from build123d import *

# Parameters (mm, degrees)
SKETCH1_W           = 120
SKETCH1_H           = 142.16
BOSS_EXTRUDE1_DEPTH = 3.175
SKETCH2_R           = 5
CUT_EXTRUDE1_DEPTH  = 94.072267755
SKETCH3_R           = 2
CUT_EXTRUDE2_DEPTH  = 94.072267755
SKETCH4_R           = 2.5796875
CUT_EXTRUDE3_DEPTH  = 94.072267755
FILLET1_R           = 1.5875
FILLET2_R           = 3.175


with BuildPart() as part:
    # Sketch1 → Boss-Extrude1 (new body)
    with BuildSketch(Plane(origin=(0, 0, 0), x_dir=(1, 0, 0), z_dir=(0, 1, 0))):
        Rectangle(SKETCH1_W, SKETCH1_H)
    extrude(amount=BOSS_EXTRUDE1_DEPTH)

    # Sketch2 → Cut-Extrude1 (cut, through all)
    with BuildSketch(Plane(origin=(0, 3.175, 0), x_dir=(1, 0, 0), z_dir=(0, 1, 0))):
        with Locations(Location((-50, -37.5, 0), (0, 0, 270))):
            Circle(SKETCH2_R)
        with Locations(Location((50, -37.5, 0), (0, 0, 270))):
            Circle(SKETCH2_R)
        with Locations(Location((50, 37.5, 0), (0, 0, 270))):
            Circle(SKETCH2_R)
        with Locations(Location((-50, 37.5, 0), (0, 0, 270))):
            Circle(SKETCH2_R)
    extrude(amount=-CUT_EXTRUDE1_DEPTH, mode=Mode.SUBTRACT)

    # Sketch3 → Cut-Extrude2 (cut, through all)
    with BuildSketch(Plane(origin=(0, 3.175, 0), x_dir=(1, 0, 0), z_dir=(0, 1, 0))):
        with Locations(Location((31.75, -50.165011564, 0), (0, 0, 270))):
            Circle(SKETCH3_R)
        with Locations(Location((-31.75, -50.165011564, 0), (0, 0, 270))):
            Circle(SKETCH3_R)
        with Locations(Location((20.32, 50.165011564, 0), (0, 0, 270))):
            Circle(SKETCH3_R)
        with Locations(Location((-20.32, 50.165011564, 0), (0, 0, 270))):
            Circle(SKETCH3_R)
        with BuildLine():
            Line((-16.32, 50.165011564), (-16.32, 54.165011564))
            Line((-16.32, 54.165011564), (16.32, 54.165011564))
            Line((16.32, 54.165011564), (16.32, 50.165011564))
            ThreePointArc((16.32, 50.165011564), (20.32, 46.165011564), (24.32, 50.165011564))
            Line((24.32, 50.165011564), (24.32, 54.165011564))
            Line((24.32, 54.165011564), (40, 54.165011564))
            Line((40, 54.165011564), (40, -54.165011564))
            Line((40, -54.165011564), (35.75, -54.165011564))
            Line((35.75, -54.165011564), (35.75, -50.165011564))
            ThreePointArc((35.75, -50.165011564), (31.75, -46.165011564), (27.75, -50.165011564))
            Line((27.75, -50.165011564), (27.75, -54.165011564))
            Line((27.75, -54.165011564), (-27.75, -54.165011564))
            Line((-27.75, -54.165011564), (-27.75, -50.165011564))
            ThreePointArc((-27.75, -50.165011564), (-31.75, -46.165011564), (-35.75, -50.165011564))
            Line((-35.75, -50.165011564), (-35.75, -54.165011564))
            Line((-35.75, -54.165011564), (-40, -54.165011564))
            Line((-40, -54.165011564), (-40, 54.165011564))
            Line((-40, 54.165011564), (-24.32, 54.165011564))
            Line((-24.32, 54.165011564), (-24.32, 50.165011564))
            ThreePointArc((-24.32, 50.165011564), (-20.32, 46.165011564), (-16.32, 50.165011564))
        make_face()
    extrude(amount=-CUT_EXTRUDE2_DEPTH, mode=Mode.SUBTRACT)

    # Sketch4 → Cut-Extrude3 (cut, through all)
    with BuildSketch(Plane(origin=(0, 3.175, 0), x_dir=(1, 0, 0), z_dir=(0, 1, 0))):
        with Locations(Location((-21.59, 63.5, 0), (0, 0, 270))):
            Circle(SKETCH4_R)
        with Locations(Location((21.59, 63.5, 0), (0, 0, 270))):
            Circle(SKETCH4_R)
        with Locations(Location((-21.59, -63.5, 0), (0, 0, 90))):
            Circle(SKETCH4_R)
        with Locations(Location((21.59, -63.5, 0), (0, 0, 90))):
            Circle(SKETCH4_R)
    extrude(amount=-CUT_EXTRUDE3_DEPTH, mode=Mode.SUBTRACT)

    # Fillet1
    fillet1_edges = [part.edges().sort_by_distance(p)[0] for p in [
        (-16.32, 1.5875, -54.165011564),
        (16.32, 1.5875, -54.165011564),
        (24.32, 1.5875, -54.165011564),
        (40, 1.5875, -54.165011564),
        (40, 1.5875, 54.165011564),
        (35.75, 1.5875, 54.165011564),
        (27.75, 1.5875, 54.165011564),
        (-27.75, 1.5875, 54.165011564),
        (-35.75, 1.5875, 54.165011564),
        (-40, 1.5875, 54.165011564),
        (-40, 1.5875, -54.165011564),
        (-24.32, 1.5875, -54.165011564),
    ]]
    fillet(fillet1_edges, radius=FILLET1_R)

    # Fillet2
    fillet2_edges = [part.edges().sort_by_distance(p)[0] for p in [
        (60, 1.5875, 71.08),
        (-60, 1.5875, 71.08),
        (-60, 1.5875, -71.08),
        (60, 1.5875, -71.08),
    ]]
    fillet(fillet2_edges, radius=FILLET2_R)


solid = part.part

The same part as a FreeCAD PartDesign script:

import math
import FreeCAD as App
import Part
import Sketcher
from FreeCAD import Vector


def edges_at(feature, points):
    """Names of the edges that pass closest to the given points."""
    edges = feature.Shape.Edges
    near = lambda p: min(range(len(edges)), key=lambda i: edges[i].distToShape(Part.Vertex(*p))[0])
    return sorted({f"Edge{near(p) + 1}" for p in points})

doc = App.newDocument("Part")
body = doc.addObject("PartDesign::Body", "Body")

# Sketch on XZ plane
sketch1 = body.newObject("Sketcher::SketchObject", "Sketch")
sketch1.AttachmentSupport = (doc.getObject("XZ_Plane"), [""])
sketch1.MapMode = "FlatFace"
sketch1.addGeometry([
    Part.LineSegment(Vector(-60, -71, 0), Vector(-60, 71, 0)),
    Part.LineSegment(Vector(-60, 71, 0), Vector(60, 71, 0)),
    Part.LineSegment(Vector(60, 71, 0), Vector(60, -71, 0)),
    Part.LineSegment(Vector(60, -71, 0), Vector(-60, -71, 0)),
], False)
sketch1.addConstraint([
    Sketcher.Constraint("Coincident", 0, 2, 1, 1),
    Sketcher.Constraint("Coincident", 1, 2, 2, 1),
    Sketcher.Constraint("Coincident", 2, 2, 3, 1),
    Sketcher.Constraint("Coincident", 3, 2, 0, 1),
    Sketcher.Constraint("Vertical", 0),
    Sketcher.Constraint("Horizontal", 1),
    Sketcher.Constraint("Vertical", 2),
    Sketcher.Constraint("Horizontal", 3),
    Sketcher.Constraint("Symmetric", 0, 2, 2, 2, -1, 1),
    Sketcher.Constraint("DistanceX", 1, 1, 1, 2, 120.0),
    Sketcher.Constraint("DistanceY", 0, 1, 0, 2, 142.16),
])
pad1 = body.newObject("PartDesign::Pad", "Pad")
pad1.Profile = sketch1
pad1.Length = 3.175
pad1.Reversed = True

# Sketch on XZ plane
sketch2 = body.newObject("Sketcher::SketchObject", "Sketch001")
sketch2.AttachmentSupport = (doc.getObject("XZ_Plane"), [""])
sketch2.MapMode = "FlatFace"
sketch2.AttachmentOffset = App.Placement(Vector(0, 0, -3.175), App.Rotation())
sketch2.addGeometry([
    Part.Circle(Vector(-50, 38, 0), Vector(0, 0, 1), 5),
    Part.Circle(Vector(50, 38, 0), Vector(0, 0, 1), 5),
    Part.Circle(Vector(50, -38, 0), Vector(0, 0, 1), 5),
    Part.Circle(Vector(-50, -38, 0), Vector(0, 0, 1), 5),
], False)
sketch2.addConstraint([
    Sketcher.Constraint("Equal", 0, 1),
    Sketcher.Constraint("Equal", 1, 2),
    Sketcher.Constraint("Equal", 2, 3),
    Sketcher.Constraint("Symmetric", 0, 3, 2, 3, -1, 1),
    Sketcher.Constraint("Symmetric", 1, 3, 3, 3, -1, 1),
    Sketcher.Constraint("Symmetric", 0, 3, 1, 3, -2),
    Sketcher.Constraint("Diameter", 0, 10.0),
    Sketcher.Constraint("DistanceX", 0, 3, -1, 1, 50.0),
    Sketcher.Constraint("DistanceY", 2, 3, 1, 3, 75.0),
])
pocket1 = body.newObject("PartDesign::Pocket", "Pocket")
pocket1.Profile = sketch2
pocket1.Type = "ThroughAll"
pocket1.Reversed = True

# Sketch on XZ plane
sketch3 = body.newObject("Sketcher::SketchObject", "Sketch002")
sketch3.AttachmentSupport = (doc.getObject("XZ_Plane"), [""])
sketch3.MapMode = "FlatFace"
sketch3.AttachmentOffset = App.Placement(Vector(0, 0, -3.175), App.Rotation())
sketch3.addGeometry([
    Part.Circle(Vector(31.8, 50.2, 0), Vector(0, 0, 1), 2),  # 0
    Part.Circle(Vector(-31.8, 50.2, 0), Vector(0, 0, 1), 2),  # 1
    Part.Circle(Vector(20.3, -50.2, 0), Vector(0, 0, 1), 2),  # 2
    Part.Circle(Vector(-20.3, -50.2, 0), Vector(0, 0, 1), 2),  # 3
    Part.LineSegment(Vector(-16.3, -54.2, 0), Vector(-16.3, -50.2, 0)),  # 4
    Part.ArcOfCircle(Part.Circle(Vector(-20.3, -50.2, 0), Vector(0, 0, 1), 4), math.radians(0), math.radians(180)),  # 5
    Part.LineSegment(Vector(-24.3, -50.2, 0), Vector(-24.3, -54.2, 0)),  # 6
    Part.LineSegment(Vector(-24.3, -54.2, 0), Vector(-40, -54.2, 0)),  # 7
    Part.LineSegment(Vector(-40, -54.2, 0), Vector(-40, 54.2, 0)),  # 8
    Part.LineSegment(Vector(-40, 54.2, 0), Vector(-35.8, 54.2, 0)),  # 9
    Part.LineSegment(Vector(-35.8, 54.2, 0), Vector(-35.8, 50.2, 0)),  # 10
    Part.ArcOfCircle(Part.Circle(Vector(-31.8, 50.2, 0), Vector(0, 0, 1), 4), math.radians(180), math.radians(360)),  # 11
    Part.LineSegment(Vector(-27.8, 50.2, 0), Vector(-27.8, 54.2, 0)),  # 12
    Part.LineSegment(Vector(-27.8, 54.2, 0), Vector(27.8, 54.2, 0)),  # 13
    Part.LineSegment(Vector(27.8, 54.2, 0), Vector(27.8, 50.2, 0)),  # 14
    Part.ArcOfCircle(Part.Circle(Vector(31.8, 50.2, 0), Vector(0, 0, 1), 4), math.radians(180), math.radians(360)),  # 15
    Part.LineSegment(Vector(35.8, 50.2, 0), Vector(35.8, 54.2, 0)),  # 16
    Part.LineSegment(Vector(35.8, 54.2, 0), Vector(40, 54.2, 0)),  # 17
    Part.LineSegment(Vector(40, 54.2, 0), Vector(40, -54.2, 0)),  # 18
    Part.LineSegment(Vector(40, -54.2, 0), Vector(24.3, -54.2, 0)),  # 19
    Part.LineSegment(Vector(24.3, -54.2, 0), Vector(24.3, -50.2, 0)),  # 20
    Part.ArcOfCircle(Part.Circle(Vector(20.3, -50.2, 0), Vector(0, 0, 1), 4), math.radians(0), math.radians(180)),  # 21
    Part.LineSegment(Vector(16.3, -50.2, 0), Vector(16.3, -54.2, 0)),  # 22
    Part.LineSegment(Vector(16.3, -54.2, 0), Vector(-16.3, -54.2, 0)),  # 23
], False)
sketch3.addConstraint([
    Sketcher.Constraint("Tangent", 4, 2, 5, 1),
    Sketcher.Constraint("Tangent", 5, 2, 6, 1),
    Sketcher.Constraint("Coincident", 6, 2, 7, 1),
    Sketcher.Constraint("Coincident", 7, 2, 8, 1),
    Sketcher.Constraint("Coincident", 8, 2, 9, 1),
    Sketcher.Constraint("Coincident", 9, 2, 10, 1),
    Sketcher.Constraint("Tangent", 10, 2, 11, 1),
    Sketcher.Constraint("Tangent", 11, 2, 12, 1),
    Sketcher.Constraint("Coincident", 12, 2, 13, 1),
    Sketcher.Constraint("Coincident", 13, 2, 14, 1),
    Sketcher.Constraint("Tangent", 14, 2, 15, 1),
    Sketcher.Constraint("Tangent", 15, 2, 16, 1),
    Sketcher.Constraint("Coincident", 16, 2, 17, 1),
    Sketcher.Constraint("Coincident", 17, 2, 18, 1),
    Sketcher.Constraint("Coincident", 18, 2, 19, 1),
    Sketcher.Constraint("Coincident", 19, 2, 20, 1),
    Sketcher.Constraint("Tangent", 20, 2, 21, 1),
    Sketcher.Constraint("Tangent", 21, 2, 22, 1),
    Sketcher.Constraint("Coincident", 22, 2, 23, 1),
    Sketcher.Constraint("Coincident", 23, 2, 4, 1),
    Sketcher.Constraint("Vertical", 4),
    Sketcher.Constraint("Vertical", 6),
    Sketcher.Constraint("Horizontal", 7),
    Sketcher.Constraint("Vertical", 8),
    Sketcher.Constraint("Horizontal", 9),
    Sketcher.Constraint("Vertical", 10),
    Sketcher.Constraint("Vertical", 12),
    Sketcher.Constraint("Horizontal", 13),
    Sketcher.Constraint("Vertical", 14),
    Sketcher.Constraint("Vertical", 16),
    Sketcher.Constraint("Horizontal", 17),
    Sketcher.Constraint("Vertical", 18),
    Sketcher.Constraint("Horizontal", 19),
    Sketcher.Constraint("Vertical", 20),
    Sketcher.Constraint("Vertical", 22),
    Sketcher.Constraint("Horizontal", 23),
    Sketcher.Constraint("Coincident", 5, 3, 3, 3),
    Sketcher.Constraint("Coincident", 11, 3, 1, 3),
    Sketcher.Constraint("Coincident", 15, 3, 0, 3),
    Sketcher.Constraint("Coincident", 21, 3, 2, 3),
    Sketcher.Constraint("Equal", 0, 1),
    Sketcher.Constraint("Equal", 1, 2),
    Sketcher.Constraint("Equal", 2, 3),
    Sketcher.Constraint("Equal", 5, 11),
    Sketcher.Constraint("Equal", 11, 15),
    Sketcher.Constraint("Equal", 15, 21),
    Sketcher.Constraint("Symmetric", 7, 2, 17, 2, -1, 1),
    Sketcher.Constraint("Symmetric", 0, 3, 1, 3, -2),
    Sketcher.Constraint("Symmetric", 2, 3, 3, 3, -2),
    Sketcher.Constraint("Horizontal", 9, 2, 12, 2),
    Sketcher.Constraint("Horizontal", 13, 2, 16, 2),
    Sketcher.Constraint("Horizontal", 7, 2, 18, 2),
    Sketcher.Constraint("Horizontal", 19, 2, 22, 2),
    Sketcher.Constraint("Equal", 6, 10),
    Sketcher.Constraint("Diameter", 0, 4.0),
    Sketcher.Constraint("Radius", 5, 4.0),
    Sketcher.Constraint("DistanceY", 4, 1, 4, 2, 4.0),
    Sketcher.Constraint("DistanceX", 13, 1, 13, 2, 55.5),
    Sketcher.Constraint("DistanceX", 7, 2, -1, 1, 40.0),
    Sketcher.Constraint("DistanceX", 7, 2, 7, 1, 15.68),
    Sketcher.Constraint("DistanceY", 8, 1, 8, 2, 108.330023),
])
pocket2 = body.newObject("PartDesign::Pocket", "Pocket001")
pocket2.Profile = sketch3
pocket2.Type = "ThroughAll"
pocket2.Reversed = True

# Sketch on XZ plane
sketch4 = body.newObject("Sketcher::SketchObject", "Sketch003")
sketch4.AttachmentSupport = (doc.getObject("XZ_Plane"), [""])
sketch4.MapMode = "FlatFace"
sketch4.AttachmentOffset = App.Placement(Vector(0, 0, -3.175), App.Rotation())
sketch4.addGeometry([
    Part.Circle(Vector(-21.6, -63.5, 0), Vector(0, 0, 1), 2.6),
    Part.Circle(Vector(21.6, -63.5, 0), Vector(0, 0, 1), 2.6),
    Part.Circle(Vector(-21.6, 63.5, 0), Vector(0, 0, 1), 2.6),
    Part.Circle(Vector(21.6, 63.5, 0), Vector(0, 0, 1), 2.6),
], False)
sketch4.addConstraint([
    Sketcher.Constraint("Equal", 0, 1),
    Sketcher.Constraint("Equal", 1, 2),
    Sketcher.Constraint("Equal", 2, 3),
    Sketcher.Constraint("Symmetric", 1, 3, 2, 3, -1, 1),
    Sketcher.Constraint("Symmetric", 0, 3, 3, 3, -1, 1),
    Sketcher.Constraint("Symmetric", 0, 3, 1, 3, -2),
    Sketcher.Constraint("DistanceY", 0, 3, 2, 3, 127.0),
    Sketcher.Constraint("DistanceX", 0, 3, -1, 1, 21.59),
    Sketcher.Constraint("Diameter", 0, 5.159375),
])
pocket3 = body.newObject("PartDesign::Pocket", "Pocket002")
pocket3.Profile = sketch4
pocket3.Type = "ThroughAll"
pocket3.Reversed = True
doc.recompute()

fillet = body.newObject("PartDesign::Fillet", "Fillet")
fillet.Base = (pocket3, edges_at(pocket3, [
    (-16.32, 1.587, -54.165),
    (16.32, 1.587, -54.165),
    (24.32, 1.587, -54.165),
    (40, 1.587, -54.165),
    (40, 1.587, 54.165),
    (35.75, 1.587, 54.165),
    (27.75, 1.587, 54.165),
    (-27.75, 1.587, 54.165),
    (-35.75, 1.587, 54.165),
    (-40, 1.587, 54.165),
    (-40, 1.587, -54.165),
    (-24.32, 1.587, -54.165),
]))
fillet.Radius = 1.5875
doc.recompute()

fillet2 = body.newObject("PartDesign::Fillet", "Fillet001")
fillet2.Base = (fillet, edges_at(fillet, [
    (60, 1.587, 71.08),
    (-60, 1.587, 71.08),
    (-60, 1.587, -71.08),
    (60, 1.587, -71.08),
]))
fillet2.Radius = 3.175

doc.recompute()
